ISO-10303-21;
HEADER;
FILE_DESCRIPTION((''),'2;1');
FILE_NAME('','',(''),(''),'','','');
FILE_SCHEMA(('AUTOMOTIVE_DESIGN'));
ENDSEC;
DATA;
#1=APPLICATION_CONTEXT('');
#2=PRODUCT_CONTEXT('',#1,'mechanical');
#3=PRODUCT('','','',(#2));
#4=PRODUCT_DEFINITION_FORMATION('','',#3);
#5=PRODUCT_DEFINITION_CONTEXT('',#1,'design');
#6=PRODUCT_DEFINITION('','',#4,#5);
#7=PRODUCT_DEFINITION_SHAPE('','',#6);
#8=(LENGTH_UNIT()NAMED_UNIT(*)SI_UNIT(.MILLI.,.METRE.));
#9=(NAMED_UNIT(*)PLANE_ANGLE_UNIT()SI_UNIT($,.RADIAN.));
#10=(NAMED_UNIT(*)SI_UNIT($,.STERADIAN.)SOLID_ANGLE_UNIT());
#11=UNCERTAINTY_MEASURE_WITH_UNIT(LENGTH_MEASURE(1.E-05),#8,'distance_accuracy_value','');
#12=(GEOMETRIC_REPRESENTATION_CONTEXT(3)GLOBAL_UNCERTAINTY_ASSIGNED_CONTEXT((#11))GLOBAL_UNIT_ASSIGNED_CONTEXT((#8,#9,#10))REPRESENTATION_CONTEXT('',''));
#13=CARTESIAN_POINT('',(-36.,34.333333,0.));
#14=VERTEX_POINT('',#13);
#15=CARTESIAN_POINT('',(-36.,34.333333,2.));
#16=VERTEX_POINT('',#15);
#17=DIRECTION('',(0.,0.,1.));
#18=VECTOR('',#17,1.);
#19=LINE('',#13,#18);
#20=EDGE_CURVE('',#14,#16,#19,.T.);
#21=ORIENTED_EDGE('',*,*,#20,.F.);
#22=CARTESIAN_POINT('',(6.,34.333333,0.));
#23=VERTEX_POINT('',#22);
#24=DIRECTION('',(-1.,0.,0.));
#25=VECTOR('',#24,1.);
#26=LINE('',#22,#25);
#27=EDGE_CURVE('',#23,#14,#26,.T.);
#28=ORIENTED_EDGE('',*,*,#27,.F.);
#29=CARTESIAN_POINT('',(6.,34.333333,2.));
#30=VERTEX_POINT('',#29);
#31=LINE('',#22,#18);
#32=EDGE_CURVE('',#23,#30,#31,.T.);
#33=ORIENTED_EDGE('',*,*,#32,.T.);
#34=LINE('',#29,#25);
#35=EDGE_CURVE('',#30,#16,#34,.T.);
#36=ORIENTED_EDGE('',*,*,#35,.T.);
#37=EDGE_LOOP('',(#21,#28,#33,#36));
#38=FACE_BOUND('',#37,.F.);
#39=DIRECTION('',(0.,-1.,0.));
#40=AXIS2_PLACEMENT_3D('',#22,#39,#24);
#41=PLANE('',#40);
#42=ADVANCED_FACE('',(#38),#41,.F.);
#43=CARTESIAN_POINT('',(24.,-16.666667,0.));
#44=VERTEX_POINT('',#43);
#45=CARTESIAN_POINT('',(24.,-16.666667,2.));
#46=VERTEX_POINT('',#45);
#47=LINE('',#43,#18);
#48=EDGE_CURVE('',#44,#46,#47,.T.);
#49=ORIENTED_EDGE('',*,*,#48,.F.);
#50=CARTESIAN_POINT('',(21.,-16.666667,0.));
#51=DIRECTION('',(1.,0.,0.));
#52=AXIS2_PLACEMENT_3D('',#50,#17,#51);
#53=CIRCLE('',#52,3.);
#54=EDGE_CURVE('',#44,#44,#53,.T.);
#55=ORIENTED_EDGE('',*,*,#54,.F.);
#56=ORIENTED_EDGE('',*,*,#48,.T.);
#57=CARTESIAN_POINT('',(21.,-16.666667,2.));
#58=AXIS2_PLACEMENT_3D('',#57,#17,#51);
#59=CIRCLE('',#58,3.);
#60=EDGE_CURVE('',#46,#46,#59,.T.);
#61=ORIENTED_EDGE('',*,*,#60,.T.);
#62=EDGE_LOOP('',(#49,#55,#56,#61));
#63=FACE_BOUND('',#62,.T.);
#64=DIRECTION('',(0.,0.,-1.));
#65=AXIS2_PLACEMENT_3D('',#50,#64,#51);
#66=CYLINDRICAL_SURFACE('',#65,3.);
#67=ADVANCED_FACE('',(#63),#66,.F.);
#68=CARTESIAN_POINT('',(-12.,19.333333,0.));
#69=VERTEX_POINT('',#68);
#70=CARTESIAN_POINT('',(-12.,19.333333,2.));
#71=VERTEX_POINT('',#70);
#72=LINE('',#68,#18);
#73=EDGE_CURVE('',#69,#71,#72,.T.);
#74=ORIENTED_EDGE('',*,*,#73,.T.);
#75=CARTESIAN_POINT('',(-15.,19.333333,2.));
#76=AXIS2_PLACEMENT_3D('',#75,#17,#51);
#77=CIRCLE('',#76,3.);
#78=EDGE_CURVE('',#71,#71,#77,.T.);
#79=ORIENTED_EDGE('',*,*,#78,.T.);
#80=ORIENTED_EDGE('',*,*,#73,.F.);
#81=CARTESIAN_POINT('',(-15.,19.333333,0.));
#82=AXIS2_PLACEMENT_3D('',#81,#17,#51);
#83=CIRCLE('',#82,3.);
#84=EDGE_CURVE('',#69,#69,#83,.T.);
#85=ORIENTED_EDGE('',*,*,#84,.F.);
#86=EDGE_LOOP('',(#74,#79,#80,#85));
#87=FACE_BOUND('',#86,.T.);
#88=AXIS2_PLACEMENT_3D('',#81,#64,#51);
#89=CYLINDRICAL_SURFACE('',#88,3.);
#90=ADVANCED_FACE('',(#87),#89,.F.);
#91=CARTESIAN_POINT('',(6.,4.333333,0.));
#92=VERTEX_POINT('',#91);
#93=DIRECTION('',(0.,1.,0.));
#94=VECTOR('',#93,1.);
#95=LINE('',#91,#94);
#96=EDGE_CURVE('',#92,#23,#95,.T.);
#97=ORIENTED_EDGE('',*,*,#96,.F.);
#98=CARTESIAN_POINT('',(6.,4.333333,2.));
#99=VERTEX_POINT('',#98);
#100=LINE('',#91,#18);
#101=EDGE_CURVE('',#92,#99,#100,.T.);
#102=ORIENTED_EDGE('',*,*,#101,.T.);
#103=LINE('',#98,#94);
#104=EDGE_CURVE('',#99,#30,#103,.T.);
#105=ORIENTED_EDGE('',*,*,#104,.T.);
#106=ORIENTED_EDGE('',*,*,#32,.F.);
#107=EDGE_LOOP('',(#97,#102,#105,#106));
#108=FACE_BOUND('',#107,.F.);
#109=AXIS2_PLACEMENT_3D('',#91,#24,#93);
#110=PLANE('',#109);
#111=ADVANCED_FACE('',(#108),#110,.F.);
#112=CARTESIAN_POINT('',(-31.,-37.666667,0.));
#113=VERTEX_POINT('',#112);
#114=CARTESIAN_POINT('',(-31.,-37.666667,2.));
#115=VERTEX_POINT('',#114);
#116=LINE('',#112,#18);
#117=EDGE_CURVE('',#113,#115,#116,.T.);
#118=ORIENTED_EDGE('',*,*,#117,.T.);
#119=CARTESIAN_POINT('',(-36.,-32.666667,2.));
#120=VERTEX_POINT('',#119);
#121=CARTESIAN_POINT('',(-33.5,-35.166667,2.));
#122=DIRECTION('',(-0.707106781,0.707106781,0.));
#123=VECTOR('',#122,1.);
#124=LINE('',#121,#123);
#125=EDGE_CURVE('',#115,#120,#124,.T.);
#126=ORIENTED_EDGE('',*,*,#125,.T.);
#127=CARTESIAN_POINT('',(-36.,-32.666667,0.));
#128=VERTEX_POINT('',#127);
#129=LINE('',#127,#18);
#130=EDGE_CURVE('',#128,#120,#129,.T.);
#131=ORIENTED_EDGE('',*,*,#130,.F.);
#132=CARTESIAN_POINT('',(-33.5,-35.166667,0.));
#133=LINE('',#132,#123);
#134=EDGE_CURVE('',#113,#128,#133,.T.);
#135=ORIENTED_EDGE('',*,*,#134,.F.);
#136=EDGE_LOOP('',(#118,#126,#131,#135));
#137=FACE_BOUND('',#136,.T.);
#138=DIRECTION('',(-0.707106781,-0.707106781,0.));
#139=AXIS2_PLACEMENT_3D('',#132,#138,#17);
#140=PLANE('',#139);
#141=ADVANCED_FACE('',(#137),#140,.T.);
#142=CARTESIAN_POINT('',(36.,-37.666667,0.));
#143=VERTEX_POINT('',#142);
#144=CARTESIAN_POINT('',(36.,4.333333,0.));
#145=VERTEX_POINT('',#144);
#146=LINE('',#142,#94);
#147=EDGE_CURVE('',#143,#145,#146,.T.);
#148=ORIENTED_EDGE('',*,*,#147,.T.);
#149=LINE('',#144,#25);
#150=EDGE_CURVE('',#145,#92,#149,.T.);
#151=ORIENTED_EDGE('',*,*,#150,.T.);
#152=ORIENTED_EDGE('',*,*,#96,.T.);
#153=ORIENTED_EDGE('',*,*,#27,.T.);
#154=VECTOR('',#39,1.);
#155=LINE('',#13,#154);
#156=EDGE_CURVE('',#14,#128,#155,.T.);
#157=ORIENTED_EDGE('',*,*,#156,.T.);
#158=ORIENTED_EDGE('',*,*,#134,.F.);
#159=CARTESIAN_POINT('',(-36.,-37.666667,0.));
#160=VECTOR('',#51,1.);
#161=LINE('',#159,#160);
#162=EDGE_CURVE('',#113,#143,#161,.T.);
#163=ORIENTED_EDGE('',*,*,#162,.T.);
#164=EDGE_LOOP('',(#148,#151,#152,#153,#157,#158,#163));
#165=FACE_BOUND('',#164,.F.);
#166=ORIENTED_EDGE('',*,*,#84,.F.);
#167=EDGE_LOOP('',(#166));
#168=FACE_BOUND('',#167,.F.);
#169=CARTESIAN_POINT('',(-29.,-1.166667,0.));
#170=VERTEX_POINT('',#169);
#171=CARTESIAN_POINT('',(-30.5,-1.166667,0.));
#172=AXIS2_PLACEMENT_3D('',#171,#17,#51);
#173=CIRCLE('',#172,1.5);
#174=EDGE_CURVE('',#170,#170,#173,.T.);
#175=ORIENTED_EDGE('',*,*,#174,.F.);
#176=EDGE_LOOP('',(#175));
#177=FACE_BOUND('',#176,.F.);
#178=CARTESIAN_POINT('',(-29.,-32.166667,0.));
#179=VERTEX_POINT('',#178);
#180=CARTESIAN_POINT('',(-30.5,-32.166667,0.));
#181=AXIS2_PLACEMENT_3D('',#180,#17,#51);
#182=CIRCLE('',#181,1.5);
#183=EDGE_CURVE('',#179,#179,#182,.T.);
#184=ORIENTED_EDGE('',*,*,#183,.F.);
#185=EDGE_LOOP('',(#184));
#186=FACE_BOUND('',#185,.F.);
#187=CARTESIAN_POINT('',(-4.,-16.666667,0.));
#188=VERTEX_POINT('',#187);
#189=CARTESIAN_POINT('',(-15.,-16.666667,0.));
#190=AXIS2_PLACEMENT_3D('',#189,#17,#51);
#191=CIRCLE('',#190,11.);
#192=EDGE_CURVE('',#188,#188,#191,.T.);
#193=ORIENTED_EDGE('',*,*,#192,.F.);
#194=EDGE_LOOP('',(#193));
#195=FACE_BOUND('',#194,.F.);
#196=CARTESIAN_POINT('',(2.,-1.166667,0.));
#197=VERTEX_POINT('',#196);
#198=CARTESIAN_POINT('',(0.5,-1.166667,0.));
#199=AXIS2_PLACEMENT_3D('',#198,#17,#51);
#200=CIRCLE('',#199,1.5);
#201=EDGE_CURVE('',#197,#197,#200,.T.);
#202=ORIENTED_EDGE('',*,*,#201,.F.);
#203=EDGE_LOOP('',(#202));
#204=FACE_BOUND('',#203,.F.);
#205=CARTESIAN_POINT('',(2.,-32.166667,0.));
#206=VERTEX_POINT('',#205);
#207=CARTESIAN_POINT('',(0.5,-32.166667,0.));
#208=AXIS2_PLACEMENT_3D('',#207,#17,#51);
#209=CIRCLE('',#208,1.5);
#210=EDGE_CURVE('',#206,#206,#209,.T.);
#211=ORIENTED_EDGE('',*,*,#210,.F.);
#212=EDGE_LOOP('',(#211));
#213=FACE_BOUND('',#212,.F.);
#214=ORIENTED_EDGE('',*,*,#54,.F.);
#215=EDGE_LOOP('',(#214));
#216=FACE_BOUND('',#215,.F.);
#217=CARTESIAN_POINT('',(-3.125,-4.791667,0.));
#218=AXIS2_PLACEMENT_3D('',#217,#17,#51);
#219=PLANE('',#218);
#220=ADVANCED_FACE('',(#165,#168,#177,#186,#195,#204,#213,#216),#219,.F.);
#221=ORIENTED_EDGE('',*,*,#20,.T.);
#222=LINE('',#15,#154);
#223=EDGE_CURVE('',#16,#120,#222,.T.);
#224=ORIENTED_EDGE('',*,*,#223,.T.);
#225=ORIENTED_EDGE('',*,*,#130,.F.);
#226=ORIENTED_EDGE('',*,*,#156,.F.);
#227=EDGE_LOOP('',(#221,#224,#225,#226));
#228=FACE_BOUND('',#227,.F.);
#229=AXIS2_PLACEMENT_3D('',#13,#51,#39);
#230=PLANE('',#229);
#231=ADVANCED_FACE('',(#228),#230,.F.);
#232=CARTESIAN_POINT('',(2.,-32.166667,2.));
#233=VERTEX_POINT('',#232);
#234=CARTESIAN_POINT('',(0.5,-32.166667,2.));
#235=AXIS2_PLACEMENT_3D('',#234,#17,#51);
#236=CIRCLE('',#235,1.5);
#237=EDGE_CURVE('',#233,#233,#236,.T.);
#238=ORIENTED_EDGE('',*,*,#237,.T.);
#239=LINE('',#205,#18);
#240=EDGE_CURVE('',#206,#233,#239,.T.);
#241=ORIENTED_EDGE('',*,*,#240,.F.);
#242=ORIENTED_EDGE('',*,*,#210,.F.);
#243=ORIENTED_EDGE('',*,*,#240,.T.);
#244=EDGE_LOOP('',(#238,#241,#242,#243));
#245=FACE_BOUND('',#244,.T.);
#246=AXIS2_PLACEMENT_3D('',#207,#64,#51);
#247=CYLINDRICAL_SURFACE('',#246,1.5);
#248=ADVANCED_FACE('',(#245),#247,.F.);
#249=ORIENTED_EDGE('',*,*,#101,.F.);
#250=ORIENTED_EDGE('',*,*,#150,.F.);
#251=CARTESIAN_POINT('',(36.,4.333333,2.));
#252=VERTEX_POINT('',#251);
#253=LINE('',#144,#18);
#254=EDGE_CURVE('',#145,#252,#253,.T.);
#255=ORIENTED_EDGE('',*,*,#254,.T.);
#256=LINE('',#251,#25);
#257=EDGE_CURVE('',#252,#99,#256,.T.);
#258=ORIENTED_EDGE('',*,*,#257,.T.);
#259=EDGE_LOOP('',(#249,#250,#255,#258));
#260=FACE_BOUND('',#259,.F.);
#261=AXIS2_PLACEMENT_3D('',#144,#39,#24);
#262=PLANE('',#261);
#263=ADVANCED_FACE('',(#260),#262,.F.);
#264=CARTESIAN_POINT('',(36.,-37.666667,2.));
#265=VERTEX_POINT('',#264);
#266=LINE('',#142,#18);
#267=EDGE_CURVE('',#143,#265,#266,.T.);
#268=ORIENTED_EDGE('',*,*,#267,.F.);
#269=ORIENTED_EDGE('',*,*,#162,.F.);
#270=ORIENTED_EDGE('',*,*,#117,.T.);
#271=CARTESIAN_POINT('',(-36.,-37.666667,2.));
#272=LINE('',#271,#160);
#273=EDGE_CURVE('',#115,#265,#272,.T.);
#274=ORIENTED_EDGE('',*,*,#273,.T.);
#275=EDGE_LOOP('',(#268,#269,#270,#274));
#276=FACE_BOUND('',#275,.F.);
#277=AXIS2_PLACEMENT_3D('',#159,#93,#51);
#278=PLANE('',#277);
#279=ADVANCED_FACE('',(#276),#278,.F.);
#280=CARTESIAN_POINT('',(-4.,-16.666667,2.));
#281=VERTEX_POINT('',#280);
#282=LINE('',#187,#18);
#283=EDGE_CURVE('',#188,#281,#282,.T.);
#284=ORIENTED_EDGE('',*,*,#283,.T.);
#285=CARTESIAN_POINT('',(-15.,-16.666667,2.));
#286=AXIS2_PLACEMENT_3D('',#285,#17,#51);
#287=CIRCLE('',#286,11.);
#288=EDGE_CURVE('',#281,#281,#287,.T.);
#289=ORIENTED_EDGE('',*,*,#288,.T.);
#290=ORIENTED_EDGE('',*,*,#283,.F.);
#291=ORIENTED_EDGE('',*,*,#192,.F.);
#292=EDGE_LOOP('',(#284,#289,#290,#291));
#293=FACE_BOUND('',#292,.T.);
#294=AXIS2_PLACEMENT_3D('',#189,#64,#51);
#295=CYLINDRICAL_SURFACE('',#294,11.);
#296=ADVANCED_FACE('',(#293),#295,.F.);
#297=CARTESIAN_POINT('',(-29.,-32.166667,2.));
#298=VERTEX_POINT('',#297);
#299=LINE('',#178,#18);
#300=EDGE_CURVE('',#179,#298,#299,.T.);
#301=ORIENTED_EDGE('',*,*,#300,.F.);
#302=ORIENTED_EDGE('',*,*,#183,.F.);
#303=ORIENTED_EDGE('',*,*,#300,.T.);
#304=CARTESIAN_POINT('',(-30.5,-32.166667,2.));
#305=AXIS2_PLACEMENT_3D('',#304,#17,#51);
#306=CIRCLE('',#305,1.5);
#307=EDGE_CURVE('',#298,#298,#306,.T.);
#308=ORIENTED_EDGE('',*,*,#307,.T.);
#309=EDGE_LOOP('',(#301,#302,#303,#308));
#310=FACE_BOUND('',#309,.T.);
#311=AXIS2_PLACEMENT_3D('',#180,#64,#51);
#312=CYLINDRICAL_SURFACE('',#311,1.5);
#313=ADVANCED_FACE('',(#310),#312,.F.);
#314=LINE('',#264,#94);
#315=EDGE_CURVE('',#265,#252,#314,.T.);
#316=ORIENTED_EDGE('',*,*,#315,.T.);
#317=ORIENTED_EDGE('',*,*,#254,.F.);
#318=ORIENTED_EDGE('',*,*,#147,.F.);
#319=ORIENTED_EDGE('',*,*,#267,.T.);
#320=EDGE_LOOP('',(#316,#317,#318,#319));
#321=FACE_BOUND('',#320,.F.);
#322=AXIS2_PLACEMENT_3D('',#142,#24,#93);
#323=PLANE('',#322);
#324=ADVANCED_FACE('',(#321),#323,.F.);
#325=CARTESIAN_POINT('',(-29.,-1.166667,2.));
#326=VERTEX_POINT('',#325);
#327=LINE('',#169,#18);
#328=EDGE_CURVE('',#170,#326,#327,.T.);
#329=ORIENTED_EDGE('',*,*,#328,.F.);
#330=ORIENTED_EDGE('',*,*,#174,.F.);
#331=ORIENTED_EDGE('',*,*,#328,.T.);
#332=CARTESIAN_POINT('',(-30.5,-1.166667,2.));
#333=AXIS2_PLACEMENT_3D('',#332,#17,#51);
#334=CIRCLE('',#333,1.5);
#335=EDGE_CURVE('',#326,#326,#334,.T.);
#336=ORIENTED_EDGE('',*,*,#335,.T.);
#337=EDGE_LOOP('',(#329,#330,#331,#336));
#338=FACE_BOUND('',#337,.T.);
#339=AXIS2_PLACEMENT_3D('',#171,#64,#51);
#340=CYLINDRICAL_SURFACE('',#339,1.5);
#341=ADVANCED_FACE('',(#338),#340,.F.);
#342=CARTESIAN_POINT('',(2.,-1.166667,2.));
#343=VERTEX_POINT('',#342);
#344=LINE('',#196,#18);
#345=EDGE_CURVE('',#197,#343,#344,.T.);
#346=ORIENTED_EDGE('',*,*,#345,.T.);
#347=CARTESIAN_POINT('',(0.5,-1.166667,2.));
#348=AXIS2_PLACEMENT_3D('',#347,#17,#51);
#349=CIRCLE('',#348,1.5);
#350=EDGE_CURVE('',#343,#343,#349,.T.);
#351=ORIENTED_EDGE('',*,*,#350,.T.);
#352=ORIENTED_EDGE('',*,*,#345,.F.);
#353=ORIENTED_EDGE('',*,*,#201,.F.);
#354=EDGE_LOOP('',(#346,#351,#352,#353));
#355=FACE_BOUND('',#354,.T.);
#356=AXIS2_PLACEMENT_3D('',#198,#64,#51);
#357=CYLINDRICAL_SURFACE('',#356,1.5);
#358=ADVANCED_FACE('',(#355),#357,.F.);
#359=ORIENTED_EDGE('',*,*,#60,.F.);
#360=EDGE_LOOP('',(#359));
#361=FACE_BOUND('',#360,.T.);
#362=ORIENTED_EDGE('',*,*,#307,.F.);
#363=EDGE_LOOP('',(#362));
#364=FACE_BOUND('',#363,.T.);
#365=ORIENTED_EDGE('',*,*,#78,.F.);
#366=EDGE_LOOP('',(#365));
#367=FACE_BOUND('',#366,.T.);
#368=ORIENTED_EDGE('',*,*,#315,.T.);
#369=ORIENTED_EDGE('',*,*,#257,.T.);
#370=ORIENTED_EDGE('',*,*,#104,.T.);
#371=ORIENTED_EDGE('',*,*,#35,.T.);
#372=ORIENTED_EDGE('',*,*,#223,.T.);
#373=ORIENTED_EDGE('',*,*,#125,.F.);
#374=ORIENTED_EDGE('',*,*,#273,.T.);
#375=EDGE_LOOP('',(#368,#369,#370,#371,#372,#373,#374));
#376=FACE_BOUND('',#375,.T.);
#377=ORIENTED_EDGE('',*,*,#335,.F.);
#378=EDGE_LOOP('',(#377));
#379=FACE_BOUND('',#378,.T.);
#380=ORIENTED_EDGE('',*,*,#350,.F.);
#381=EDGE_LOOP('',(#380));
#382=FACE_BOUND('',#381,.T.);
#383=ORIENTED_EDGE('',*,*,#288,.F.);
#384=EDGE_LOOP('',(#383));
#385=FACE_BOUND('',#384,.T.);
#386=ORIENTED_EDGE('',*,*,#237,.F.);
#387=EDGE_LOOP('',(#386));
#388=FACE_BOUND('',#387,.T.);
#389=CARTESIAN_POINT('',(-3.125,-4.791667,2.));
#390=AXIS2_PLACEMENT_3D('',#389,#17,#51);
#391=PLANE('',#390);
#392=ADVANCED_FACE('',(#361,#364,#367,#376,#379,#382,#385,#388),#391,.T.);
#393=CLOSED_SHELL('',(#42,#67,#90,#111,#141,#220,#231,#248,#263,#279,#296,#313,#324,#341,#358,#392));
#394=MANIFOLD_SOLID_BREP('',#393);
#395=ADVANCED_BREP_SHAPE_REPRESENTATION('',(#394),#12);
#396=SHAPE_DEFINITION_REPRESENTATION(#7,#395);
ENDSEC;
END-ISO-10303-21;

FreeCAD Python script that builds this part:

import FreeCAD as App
import Part
import Sketcher

V = App.Vector
Q = App.Units.Quantity


def edges_at(feature, points):
    """Names of the edges that pass closest to the given points."""
    edges = feature.Shape.Edges
    near = lambda p: min(range(len(edges)), key=lambda i: edges[i].distToShape(Part.Vertex(*p))[0])
    return sorted({f"Edge{near(p) + 1}" for p in points})

doc = App.newDocument("Part")
body = doc.addObject("PartDesign::Body", "Body")

# Sketch on XY plane
sketch1 = doc.addObject("Sketcher::SketchObject", "Sketch")
body.addObject(sketch1)
sketch1.AttachmentSupport = (doc.XY_Plane, [""])
sketch1.MapMode = "FlatFace"
sketch1.addGeometry(Part.LineSegment(V(-36, -37.7, 0), V(36, -37.7, 0)), False)
sketch1.addGeometry(Part.LineSegment(V(36, -37.7, 0), V(36, 4.3, 0)), False)
sketch1.addGeometry(Part.LineSegment(V(36, 4.3, 0), V(6, 4.3, 0)), False)
sketch1.addGeometry(Part.LineSegment(V(6, 4.3, 0), V(6, 34.3, 0)), False)
sketch1.addGeometry(Part.LineSegment(V(6, 34.3, 0), V(-36, 34.3, 0)), False)
sketch1.addGeometry(Part.LineSegment(V(-36, 34.3, 0), V(-36, -37.7, 0)), False)
sketch1.addGeometry(Part.Circle(V(-30.5, -32.2, 0), V(0, 0, 1), 1.5), False)
sketch1.addGeometry(Part.Circle(V(-15, -16.7, 0), V(0, 0, 1), 11), False)
sketch1.addGeometry(Part.Circle(V(0.5, -32.2, 0), V(0, 0, 1), 1.5), False)
sketch1.addGeometry(Part.Circle(V(21, -16.7, 0), V(0, 0, 1), 3), False)
sketch1.addGeometry(Part.Circle(V(-30.5, -1.2, 0), V(0, 0, 1), 1.5), False)
sketch1.addGeometry(Part.Circle(V(-15, 19.3, 0), V(0, 0, 1), 3), False)
sketch1.addGeometry(Part.Circle(V(0.5, -1.2, 0), V(0, 0, 1), 1.5), False)
sketch1.addConstraint(Sketcher.Constraint("Coincident", 0, 2, 1, 1))
sketch1.addConstraint(Sketcher.Constraint("Coincident", 1, 2, 2, 1))
sketch1.addConstraint(Sketcher.Constraint("Coincident", 2, 2, 3, 1))
sketch1.addConstraint(Sketcher.Constraint("Coincident", 3, 2, 4, 1))
sketch1.addConstraint(Sketcher.Constraint("Coincident", 4, 2, 5, 1))
sketch1.addConstraint(Sketcher.Constraint("Coincident", 5, 2, 0, 1))
sketch1.addConstraint(Sketcher.Constraint("Horizontal", 0))
sketch1.addConstraint(Sketcher.Constraint("Vertical", 1))
sketch1.addConstraint(Sketcher.Constraint("Horizontal", 2))
sketch1.addConstraint(Sketcher.Constraint("Vertical", 3))
sketch1.addConstraint(Sketcher.Constraint("Horizontal", 4))
sketch1.addConstraint(Sketcher.Constraint("Vertical", 5))
sketch1.addConstraint(Sketcher.Constraint("Equal", 6, 8))
sketch1.addConstraint(Sketcher.Constraint("Equal", 8, 10))
sketch1.addConstraint(Sketcher.Constraint("Equal", 9, 11))
sketch1.addConstraint(Sketcher.Constraint("Equal", 10, 12))
sketch1.addConstraint(Sketcher.Constraint("Horizontal", 6, 3, 8, 3))
sketch1.addConstraint(Sketcher.Constraint("Horizontal", 7, 3, 9, 3))
sketch1.addConstraint(Sketcher.Constraint("Horizontal", 10, 3, 12, 3))
sketch1.addConstraint(Sketcher.Constraint("Vertical", 6, 3, 10, 3))
sketch1.addConstraint(Sketcher.Constraint("Vertical", 7, 3, 11, 3))
sketch1.addConstraint(Sketcher.Constraint("Vertical", 8, 3, 12, 3))
sketch1.addConstraint(Sketcher.Constraint("Equal", 4, 1))
sketch1.addConstraint(Sketcher.Constraint("Equal", 2, 3))
sketch1.addConstraint(Sketcher.Constraint("Diameter", 6, Q("3 mm")))
sketch1.addConstraint(Sketcher.Constraint("Diameter", 7, Q("22 mm")))
sketch1.addConstraint(Sketcher.Constraint("Diameter", 9, Q("6 mm")))
sketch1.addConstraint(Sketcher.Constraint("DistanceX", 0, 1, 0, 2, Q("72 mm")))
sketch1.addConstraint(Sketcher.Constraint("DistanceX", 2, 2, 2, 1, Q("30 mm")))
sketch1.addConstraint(Sketcher.Constraint("DistanceX", 7, 3, -1, 1, Q("15 mm")))
sketch1.addConstraint(Sketcher.Constraint("DistanceX", -1, 1, 9, 3, Q("21 mm")))
sketch1.addConstraint(Sketcher.Constraint("DistanceX", -1, 1, 0, 2, Q("36 mm")))
sketch1.addConstraint(Sketcher.Constraint("DistanceX", 6, 3, 8, 3, Q("31 mm")))
sketch1.addConstraint(Sketcher.Constraint("DistanceY", 6, 3, 10, 3, Q("31 mm")))
sketch1.addConstraint(Sketcher.Constraint("DistanceY", 7, 3, 11, 3, Q("36 mm")))
sketch1.addConstraint(Sketcher.Constraint("DistanceY", 0, 2, 9, 3, Q("21 mm")))
sketch1.addConstraint(Sketcher.Constraint("DistanceX", 6, 3, -1, 1, Q("30.5 mm")))
sketch1.addConstraint(Sketcher.Constraint("DistanceY", 6, 3, 7, 3, Q("15.5 mm")))
sketch1.addConstraint(Sketcher.Constraint("DistanceY", 6, 3, -1, 1, Q("32.166667 mm")))
pad1 = doc.addObject("PartDesign::Pad", "Pad")
body.addObject(pad1)
pad1.Profile = sketch1
pad1.Length = 2
doc.recompute()

chamfer = doc.addObject("PartDesign::Chamfer", "Chamfer")
body.addObject(chamfer)
chamfer.Base = (pad1, edges_at(pad1, [(-36, -37.667, 1)]))
chamfer.Size = 5

doc.recompute()
